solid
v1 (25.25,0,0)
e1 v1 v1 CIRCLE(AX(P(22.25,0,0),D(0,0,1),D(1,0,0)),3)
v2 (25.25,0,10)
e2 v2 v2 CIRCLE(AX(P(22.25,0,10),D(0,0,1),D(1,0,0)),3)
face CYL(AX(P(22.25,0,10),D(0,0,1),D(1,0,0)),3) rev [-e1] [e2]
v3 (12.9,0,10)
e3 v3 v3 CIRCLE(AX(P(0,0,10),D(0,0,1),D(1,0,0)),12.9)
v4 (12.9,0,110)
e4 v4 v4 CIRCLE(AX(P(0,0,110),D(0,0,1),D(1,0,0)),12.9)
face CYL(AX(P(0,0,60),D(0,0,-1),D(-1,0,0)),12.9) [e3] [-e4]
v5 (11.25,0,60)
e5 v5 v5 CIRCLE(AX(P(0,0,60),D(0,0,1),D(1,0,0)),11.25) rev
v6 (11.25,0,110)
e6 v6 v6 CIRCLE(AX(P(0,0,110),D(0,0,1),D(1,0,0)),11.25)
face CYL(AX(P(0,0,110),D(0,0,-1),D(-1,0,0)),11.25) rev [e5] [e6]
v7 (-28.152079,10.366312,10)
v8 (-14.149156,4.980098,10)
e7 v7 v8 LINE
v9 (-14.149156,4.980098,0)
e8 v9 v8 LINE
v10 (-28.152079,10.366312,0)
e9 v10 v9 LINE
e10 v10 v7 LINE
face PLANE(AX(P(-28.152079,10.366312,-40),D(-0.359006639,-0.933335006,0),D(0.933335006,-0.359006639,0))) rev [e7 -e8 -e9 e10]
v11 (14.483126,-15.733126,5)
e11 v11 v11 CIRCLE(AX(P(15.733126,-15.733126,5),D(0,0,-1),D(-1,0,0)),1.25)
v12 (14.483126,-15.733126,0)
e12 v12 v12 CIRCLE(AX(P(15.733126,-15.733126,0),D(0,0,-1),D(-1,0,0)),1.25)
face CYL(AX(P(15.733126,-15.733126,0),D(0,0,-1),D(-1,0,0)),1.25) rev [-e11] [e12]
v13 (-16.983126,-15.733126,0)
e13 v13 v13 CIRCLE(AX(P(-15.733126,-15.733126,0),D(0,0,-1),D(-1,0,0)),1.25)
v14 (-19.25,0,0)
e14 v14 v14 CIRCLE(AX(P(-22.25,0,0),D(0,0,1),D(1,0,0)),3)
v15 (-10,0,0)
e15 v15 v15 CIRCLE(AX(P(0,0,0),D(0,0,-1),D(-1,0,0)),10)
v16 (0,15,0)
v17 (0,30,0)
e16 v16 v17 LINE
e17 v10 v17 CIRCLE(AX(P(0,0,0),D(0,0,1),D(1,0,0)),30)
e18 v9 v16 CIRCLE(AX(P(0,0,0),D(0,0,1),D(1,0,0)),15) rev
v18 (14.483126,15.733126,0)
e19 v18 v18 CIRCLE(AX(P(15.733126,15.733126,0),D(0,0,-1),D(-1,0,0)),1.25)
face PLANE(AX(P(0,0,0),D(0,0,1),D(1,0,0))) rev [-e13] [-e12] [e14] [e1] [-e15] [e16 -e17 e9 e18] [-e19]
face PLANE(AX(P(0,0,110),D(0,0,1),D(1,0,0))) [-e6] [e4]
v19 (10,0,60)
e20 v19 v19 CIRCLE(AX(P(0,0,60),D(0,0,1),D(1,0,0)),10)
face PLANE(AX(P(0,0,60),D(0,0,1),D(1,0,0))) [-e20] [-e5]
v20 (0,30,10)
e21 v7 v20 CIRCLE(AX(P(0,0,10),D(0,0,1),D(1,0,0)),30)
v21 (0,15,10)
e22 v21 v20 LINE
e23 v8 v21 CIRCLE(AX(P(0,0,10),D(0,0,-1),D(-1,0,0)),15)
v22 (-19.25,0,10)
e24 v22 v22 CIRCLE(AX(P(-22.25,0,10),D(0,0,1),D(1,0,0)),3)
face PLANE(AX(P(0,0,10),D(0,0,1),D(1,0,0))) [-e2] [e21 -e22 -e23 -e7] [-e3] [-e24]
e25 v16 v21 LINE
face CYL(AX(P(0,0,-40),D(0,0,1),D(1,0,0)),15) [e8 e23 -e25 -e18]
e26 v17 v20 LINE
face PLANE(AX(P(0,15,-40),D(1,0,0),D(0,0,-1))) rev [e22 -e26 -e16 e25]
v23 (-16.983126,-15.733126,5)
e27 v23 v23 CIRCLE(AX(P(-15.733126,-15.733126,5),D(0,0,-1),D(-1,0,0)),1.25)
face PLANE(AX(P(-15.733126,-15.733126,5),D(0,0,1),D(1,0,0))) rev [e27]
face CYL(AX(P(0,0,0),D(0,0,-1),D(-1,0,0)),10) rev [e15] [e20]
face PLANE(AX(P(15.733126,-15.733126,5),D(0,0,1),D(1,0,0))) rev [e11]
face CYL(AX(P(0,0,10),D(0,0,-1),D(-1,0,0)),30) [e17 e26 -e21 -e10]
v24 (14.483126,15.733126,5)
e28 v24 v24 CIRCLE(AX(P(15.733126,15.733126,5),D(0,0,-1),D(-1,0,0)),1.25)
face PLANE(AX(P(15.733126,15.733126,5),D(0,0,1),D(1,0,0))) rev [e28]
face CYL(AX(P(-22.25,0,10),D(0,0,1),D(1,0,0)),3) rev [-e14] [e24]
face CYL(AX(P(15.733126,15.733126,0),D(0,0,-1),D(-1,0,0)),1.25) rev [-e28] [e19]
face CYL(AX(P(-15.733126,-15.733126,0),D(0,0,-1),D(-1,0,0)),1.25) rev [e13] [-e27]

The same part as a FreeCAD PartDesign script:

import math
import FreeCAD as App
import Part
import Sketcher
from FreeCAD import Vector
Q = App.Units.Quantity

doc = App.newDocument("Part")
body = doc.addObject("PartDesign::Body", "Body")

sketch1 = body.newObject("Sketcher::SketchObject", "Sketch")
sketch1.AttachmentSupport = (doc.getObject("XY_Plane"), [""])
sketch1.MapMode = "FlatFace"
sketch1.addGeometry(Part.Circle(Vector(0, 0, 0), Vector(0, 0, 1), 30), False)
sketch1.addConstraint([
    Sketcher.Constraint("Coincident", 0, 3, -1, 1),
    Sketcher.Constraint("Diameter", 0, Q("60 mm")),
])
pad1 = body.newObject("PartDesign::Pad", "Pad")
pad1.Profile = sketch1
pad1.Length = 10

sketch2 = body.newObject("Sketcher::SketchObject", "Sketch001")
sketch2.AttachmentSupport = (doc.getObject("XY_Plane"), [""])
sketch2.MapMode = "FlatFace"
sketch2.AttachmentOffset = App.Placement(Vector(0, 0, 10), App.Rotation())
sketch2.addGeometry(Part.Circle(Vector(0, 0, 0), Vector(0, 0, 1), 13), False)
sketch2.addConstraint([
    Sketcher.Constraint("Coincident", 0, 3, -1, 1),
    Sketcher.Constraint("Diameter", 0, Q("25.8 mm")),
])
pad2 = body.newObject("PartDesign::Pad", "Pad001")
pad2.Profile = sketch2
pad2.Length = 50

sketch3 = body.newObject("Sketcher::SketchObject", "Sketch002")
sketch3.AttachmentSupport = (doc.getObject("XY_Plane"), [""])
sketch3.MapMode = "FlatFace"
sketch3.AttachmentOffset = App.Placement(Vector(0, 0, 10), App.Rotation())
sketch3.addGeometry([
    Part.Circle(Vector(-22.2, 0, 0), Vector(0, 0, 1), 3),
    Part.Circle(Vector(22.2, 0, 0), Vector(0, 0, 1), 3),
], False)
sketch3.addConstraint([
    Sketcher.Constraint("Equal", 0, 1),
    Sketcher.Constraint("Symmetric", 0, 3, 1, 3, -1, 1),
    Sketcher.Constraint("PointOnObject", 0, 3, -1),
    Sketcher.Constraint("Diameter", 0, Q("6 mm")),
    Sketcher.Constraint("DistanceX", 0, 3, 1, 3, Q("44.5 mm")),
])
doc.recompute()
hole = body.newObject("PartDesign::Hole", "Hole")
hole.Profile = sketch3
hole.ThreadType = "None"
hole.Diameter = 6
hole.DepthType = "ThroughAll"

sketch4 = body.newObject("Sketcher::SketchObject", "Sketch003")
sketch4.AttachmentSupport = (doc.getObject("XY_Plane"), [""])
sketch4.MapMode = "FlatFace"
sketch4.AttachmentOffset = App.Placement(Vector(0, 0, -40), App.Rotation())
sketch4.addGeometry([
    Part.LineSegment(Vector(0, 15, 0), Vector(0, 30, 0)),
    Part.ArcOfCircle(Part.Circle(Vector(0, 0, 0), Vector(0, 0, 1), 30), math.radians(90), math.radians(160)),
    Part.LineSegment(Vector(-28, 10, 0), Vector(-14, 5, 0)),
    Part.ArcOfCircle(Part.Circle(Vector(0, 0, 0), Vector(0, 0, 1), 15), math.radians(90), math.radians(161)),
], False)
sketch4.addConstraint([
    Sketcher.Constraint("Coincident", 0, 2, 1, 1),
    Sketcher.Constraint("Coincident", 1, 2, 2, 1),
    Sketcher.Constraint("Coincident", 2, 2, 3, 2),
    Sketcher.Constraint("Coincident", 3, 1, 0, 1),
    Sketcher.Constraint("Vertical", 0),
    Sketcher.Constraint("Coincident", 1, 3, -1, 1),
    Sketcher.Constraint("Coincident", 3, 3, -1, 1),
    Sketcher.Constraint("PointOnObject", 0, 2, -2),
    Sketcher.Constraint("Radius", 1, Q("30 mm")),
    Sketcher.Constraint("Radius", 3, Q("15 mm")),
    Sketcher.Constraint("DistanceY", -1, 1, 2, 2, Q("4.980098 mm")),
    Sketcher.Constraint("DistanceX", 1, 2, -1, 1, Q("28.152079 mm")),
])
pocket1 = body.newObject("PartDesign::Pocket", "Pocket")
pocket1.Profile = sketch4
pocket1.Length = 50
pocket1.Reversed = True

sketch5 = body.newObject("Sketcher::SketchObject", "Sketch004")
sketch5.AttachmentSupport = (doc.getObject("XY_Plane"), [""])
sketch5.MapMode = "FlatFace"
sketch5.addGeometry([
    Part.Circle(Vector(15.7, 15.7, 0), Vector(0, 0, 1), 1.2),
    Part.Circle(Vector(15.7, -15.7, 0), Vector(0, 0, 1), 1.2),
    Part.Circle(Vector(-15.7, -15.7, 0), Vector(0, 0, 1), 1.2),
], False)
sketch5.addConstraint([
    Sketcher.Constraint("Equal", 0, 1),
    Sketcher.Constraint("Equal", 1, 2),
    Sketcher.Constraint("Symmetric", 0, 3, 2, 3, -1, 1),
    Sketcher.Constraint("Symmetric", 1, 3, 2, 3, -2),
    Sketcher.Constraint("Diameter", 0, Q("2.5 mm")),
    Sketcher.Constraint("DistanceY", 1, 3, 0, 3, Q("31.466252 mm")),
    Sketcher.Constraint("DistanceX", 2, 3, 1, 3, Q("31.466252 mm")),
])
doc.recompute()
hole2 = body.newObject("PartDesign::Hole", "Hole001")
hole2.Profile = sketch5
hole2.ThreadType = "None"
hole2.Diameter = 2.5
hole2.DepthType = "Dimension"
hole2.Depth = 5
hole2.DrillPoint = "Flat"
hole2.Reversed = True

sketch6 = body.newObject("Sketcher::SketchObject", "Sketch005")
sketch6.AttachmentSupport = (doc.getObject("XY_Plane"), [""])
sketch6.MapMode = "FlatFace"
sketch6.AttachmentOffset = App.Placement(Vector(0, 0, 60), App.Rotation())
sketch6.addGeometry([
    Part.Circle(Vector(0, 0, 0), Vector(0, 0, 1), 13),
    Part.Circle(Vector(0, 0, 0), Vector(0, 0, 1), 11),
], False)
sketch6.addConstraint([
    Sketcher.Constraint("Coincident", 0, 3, -1, 1),
    Sketcher.Constraint("Coincident", 1, 3, -1, 1),
    Sketcher.Constraint("Diameter", 0, Q("25.8 mm")),
    Sketcher.Constraint("Diameter", 1, Q("22.5 mm")),
])
pad3 = body.newObject("PartDesign::Pad", "Pad002")
pad3.Profile = sketch6
pad3.Length = 50

sketch7 = body.newObject("Sketcher::SketchObject", "Sketch006")
sketch7.AttachmentSupport = (doc.getObject("XY_Plane"), [""])
sketch7.MapMode = "FlatFace"
sketch7.addGeometry(Part.Circle(Vector(0, 0, 0), Vector(0, 0, 1), 10), False)
sketch7.addConstraint([
    Sketcher.Constraint("Coincident", 0, 3, -1, 1),
    Sketcher.Constraint("Diameter", 0, Q("20 mm")),
])
doc.recompute()
hole3 = body.newObject("PartDesign::Hole", "Hole002")
hole3.Profile = sketch7
hole3.ThreadType = "None"
hole3.Diameter = 20
hole3.DepthType = "ThroughAll"
hole3.Reversed = True

doc.recompute()
